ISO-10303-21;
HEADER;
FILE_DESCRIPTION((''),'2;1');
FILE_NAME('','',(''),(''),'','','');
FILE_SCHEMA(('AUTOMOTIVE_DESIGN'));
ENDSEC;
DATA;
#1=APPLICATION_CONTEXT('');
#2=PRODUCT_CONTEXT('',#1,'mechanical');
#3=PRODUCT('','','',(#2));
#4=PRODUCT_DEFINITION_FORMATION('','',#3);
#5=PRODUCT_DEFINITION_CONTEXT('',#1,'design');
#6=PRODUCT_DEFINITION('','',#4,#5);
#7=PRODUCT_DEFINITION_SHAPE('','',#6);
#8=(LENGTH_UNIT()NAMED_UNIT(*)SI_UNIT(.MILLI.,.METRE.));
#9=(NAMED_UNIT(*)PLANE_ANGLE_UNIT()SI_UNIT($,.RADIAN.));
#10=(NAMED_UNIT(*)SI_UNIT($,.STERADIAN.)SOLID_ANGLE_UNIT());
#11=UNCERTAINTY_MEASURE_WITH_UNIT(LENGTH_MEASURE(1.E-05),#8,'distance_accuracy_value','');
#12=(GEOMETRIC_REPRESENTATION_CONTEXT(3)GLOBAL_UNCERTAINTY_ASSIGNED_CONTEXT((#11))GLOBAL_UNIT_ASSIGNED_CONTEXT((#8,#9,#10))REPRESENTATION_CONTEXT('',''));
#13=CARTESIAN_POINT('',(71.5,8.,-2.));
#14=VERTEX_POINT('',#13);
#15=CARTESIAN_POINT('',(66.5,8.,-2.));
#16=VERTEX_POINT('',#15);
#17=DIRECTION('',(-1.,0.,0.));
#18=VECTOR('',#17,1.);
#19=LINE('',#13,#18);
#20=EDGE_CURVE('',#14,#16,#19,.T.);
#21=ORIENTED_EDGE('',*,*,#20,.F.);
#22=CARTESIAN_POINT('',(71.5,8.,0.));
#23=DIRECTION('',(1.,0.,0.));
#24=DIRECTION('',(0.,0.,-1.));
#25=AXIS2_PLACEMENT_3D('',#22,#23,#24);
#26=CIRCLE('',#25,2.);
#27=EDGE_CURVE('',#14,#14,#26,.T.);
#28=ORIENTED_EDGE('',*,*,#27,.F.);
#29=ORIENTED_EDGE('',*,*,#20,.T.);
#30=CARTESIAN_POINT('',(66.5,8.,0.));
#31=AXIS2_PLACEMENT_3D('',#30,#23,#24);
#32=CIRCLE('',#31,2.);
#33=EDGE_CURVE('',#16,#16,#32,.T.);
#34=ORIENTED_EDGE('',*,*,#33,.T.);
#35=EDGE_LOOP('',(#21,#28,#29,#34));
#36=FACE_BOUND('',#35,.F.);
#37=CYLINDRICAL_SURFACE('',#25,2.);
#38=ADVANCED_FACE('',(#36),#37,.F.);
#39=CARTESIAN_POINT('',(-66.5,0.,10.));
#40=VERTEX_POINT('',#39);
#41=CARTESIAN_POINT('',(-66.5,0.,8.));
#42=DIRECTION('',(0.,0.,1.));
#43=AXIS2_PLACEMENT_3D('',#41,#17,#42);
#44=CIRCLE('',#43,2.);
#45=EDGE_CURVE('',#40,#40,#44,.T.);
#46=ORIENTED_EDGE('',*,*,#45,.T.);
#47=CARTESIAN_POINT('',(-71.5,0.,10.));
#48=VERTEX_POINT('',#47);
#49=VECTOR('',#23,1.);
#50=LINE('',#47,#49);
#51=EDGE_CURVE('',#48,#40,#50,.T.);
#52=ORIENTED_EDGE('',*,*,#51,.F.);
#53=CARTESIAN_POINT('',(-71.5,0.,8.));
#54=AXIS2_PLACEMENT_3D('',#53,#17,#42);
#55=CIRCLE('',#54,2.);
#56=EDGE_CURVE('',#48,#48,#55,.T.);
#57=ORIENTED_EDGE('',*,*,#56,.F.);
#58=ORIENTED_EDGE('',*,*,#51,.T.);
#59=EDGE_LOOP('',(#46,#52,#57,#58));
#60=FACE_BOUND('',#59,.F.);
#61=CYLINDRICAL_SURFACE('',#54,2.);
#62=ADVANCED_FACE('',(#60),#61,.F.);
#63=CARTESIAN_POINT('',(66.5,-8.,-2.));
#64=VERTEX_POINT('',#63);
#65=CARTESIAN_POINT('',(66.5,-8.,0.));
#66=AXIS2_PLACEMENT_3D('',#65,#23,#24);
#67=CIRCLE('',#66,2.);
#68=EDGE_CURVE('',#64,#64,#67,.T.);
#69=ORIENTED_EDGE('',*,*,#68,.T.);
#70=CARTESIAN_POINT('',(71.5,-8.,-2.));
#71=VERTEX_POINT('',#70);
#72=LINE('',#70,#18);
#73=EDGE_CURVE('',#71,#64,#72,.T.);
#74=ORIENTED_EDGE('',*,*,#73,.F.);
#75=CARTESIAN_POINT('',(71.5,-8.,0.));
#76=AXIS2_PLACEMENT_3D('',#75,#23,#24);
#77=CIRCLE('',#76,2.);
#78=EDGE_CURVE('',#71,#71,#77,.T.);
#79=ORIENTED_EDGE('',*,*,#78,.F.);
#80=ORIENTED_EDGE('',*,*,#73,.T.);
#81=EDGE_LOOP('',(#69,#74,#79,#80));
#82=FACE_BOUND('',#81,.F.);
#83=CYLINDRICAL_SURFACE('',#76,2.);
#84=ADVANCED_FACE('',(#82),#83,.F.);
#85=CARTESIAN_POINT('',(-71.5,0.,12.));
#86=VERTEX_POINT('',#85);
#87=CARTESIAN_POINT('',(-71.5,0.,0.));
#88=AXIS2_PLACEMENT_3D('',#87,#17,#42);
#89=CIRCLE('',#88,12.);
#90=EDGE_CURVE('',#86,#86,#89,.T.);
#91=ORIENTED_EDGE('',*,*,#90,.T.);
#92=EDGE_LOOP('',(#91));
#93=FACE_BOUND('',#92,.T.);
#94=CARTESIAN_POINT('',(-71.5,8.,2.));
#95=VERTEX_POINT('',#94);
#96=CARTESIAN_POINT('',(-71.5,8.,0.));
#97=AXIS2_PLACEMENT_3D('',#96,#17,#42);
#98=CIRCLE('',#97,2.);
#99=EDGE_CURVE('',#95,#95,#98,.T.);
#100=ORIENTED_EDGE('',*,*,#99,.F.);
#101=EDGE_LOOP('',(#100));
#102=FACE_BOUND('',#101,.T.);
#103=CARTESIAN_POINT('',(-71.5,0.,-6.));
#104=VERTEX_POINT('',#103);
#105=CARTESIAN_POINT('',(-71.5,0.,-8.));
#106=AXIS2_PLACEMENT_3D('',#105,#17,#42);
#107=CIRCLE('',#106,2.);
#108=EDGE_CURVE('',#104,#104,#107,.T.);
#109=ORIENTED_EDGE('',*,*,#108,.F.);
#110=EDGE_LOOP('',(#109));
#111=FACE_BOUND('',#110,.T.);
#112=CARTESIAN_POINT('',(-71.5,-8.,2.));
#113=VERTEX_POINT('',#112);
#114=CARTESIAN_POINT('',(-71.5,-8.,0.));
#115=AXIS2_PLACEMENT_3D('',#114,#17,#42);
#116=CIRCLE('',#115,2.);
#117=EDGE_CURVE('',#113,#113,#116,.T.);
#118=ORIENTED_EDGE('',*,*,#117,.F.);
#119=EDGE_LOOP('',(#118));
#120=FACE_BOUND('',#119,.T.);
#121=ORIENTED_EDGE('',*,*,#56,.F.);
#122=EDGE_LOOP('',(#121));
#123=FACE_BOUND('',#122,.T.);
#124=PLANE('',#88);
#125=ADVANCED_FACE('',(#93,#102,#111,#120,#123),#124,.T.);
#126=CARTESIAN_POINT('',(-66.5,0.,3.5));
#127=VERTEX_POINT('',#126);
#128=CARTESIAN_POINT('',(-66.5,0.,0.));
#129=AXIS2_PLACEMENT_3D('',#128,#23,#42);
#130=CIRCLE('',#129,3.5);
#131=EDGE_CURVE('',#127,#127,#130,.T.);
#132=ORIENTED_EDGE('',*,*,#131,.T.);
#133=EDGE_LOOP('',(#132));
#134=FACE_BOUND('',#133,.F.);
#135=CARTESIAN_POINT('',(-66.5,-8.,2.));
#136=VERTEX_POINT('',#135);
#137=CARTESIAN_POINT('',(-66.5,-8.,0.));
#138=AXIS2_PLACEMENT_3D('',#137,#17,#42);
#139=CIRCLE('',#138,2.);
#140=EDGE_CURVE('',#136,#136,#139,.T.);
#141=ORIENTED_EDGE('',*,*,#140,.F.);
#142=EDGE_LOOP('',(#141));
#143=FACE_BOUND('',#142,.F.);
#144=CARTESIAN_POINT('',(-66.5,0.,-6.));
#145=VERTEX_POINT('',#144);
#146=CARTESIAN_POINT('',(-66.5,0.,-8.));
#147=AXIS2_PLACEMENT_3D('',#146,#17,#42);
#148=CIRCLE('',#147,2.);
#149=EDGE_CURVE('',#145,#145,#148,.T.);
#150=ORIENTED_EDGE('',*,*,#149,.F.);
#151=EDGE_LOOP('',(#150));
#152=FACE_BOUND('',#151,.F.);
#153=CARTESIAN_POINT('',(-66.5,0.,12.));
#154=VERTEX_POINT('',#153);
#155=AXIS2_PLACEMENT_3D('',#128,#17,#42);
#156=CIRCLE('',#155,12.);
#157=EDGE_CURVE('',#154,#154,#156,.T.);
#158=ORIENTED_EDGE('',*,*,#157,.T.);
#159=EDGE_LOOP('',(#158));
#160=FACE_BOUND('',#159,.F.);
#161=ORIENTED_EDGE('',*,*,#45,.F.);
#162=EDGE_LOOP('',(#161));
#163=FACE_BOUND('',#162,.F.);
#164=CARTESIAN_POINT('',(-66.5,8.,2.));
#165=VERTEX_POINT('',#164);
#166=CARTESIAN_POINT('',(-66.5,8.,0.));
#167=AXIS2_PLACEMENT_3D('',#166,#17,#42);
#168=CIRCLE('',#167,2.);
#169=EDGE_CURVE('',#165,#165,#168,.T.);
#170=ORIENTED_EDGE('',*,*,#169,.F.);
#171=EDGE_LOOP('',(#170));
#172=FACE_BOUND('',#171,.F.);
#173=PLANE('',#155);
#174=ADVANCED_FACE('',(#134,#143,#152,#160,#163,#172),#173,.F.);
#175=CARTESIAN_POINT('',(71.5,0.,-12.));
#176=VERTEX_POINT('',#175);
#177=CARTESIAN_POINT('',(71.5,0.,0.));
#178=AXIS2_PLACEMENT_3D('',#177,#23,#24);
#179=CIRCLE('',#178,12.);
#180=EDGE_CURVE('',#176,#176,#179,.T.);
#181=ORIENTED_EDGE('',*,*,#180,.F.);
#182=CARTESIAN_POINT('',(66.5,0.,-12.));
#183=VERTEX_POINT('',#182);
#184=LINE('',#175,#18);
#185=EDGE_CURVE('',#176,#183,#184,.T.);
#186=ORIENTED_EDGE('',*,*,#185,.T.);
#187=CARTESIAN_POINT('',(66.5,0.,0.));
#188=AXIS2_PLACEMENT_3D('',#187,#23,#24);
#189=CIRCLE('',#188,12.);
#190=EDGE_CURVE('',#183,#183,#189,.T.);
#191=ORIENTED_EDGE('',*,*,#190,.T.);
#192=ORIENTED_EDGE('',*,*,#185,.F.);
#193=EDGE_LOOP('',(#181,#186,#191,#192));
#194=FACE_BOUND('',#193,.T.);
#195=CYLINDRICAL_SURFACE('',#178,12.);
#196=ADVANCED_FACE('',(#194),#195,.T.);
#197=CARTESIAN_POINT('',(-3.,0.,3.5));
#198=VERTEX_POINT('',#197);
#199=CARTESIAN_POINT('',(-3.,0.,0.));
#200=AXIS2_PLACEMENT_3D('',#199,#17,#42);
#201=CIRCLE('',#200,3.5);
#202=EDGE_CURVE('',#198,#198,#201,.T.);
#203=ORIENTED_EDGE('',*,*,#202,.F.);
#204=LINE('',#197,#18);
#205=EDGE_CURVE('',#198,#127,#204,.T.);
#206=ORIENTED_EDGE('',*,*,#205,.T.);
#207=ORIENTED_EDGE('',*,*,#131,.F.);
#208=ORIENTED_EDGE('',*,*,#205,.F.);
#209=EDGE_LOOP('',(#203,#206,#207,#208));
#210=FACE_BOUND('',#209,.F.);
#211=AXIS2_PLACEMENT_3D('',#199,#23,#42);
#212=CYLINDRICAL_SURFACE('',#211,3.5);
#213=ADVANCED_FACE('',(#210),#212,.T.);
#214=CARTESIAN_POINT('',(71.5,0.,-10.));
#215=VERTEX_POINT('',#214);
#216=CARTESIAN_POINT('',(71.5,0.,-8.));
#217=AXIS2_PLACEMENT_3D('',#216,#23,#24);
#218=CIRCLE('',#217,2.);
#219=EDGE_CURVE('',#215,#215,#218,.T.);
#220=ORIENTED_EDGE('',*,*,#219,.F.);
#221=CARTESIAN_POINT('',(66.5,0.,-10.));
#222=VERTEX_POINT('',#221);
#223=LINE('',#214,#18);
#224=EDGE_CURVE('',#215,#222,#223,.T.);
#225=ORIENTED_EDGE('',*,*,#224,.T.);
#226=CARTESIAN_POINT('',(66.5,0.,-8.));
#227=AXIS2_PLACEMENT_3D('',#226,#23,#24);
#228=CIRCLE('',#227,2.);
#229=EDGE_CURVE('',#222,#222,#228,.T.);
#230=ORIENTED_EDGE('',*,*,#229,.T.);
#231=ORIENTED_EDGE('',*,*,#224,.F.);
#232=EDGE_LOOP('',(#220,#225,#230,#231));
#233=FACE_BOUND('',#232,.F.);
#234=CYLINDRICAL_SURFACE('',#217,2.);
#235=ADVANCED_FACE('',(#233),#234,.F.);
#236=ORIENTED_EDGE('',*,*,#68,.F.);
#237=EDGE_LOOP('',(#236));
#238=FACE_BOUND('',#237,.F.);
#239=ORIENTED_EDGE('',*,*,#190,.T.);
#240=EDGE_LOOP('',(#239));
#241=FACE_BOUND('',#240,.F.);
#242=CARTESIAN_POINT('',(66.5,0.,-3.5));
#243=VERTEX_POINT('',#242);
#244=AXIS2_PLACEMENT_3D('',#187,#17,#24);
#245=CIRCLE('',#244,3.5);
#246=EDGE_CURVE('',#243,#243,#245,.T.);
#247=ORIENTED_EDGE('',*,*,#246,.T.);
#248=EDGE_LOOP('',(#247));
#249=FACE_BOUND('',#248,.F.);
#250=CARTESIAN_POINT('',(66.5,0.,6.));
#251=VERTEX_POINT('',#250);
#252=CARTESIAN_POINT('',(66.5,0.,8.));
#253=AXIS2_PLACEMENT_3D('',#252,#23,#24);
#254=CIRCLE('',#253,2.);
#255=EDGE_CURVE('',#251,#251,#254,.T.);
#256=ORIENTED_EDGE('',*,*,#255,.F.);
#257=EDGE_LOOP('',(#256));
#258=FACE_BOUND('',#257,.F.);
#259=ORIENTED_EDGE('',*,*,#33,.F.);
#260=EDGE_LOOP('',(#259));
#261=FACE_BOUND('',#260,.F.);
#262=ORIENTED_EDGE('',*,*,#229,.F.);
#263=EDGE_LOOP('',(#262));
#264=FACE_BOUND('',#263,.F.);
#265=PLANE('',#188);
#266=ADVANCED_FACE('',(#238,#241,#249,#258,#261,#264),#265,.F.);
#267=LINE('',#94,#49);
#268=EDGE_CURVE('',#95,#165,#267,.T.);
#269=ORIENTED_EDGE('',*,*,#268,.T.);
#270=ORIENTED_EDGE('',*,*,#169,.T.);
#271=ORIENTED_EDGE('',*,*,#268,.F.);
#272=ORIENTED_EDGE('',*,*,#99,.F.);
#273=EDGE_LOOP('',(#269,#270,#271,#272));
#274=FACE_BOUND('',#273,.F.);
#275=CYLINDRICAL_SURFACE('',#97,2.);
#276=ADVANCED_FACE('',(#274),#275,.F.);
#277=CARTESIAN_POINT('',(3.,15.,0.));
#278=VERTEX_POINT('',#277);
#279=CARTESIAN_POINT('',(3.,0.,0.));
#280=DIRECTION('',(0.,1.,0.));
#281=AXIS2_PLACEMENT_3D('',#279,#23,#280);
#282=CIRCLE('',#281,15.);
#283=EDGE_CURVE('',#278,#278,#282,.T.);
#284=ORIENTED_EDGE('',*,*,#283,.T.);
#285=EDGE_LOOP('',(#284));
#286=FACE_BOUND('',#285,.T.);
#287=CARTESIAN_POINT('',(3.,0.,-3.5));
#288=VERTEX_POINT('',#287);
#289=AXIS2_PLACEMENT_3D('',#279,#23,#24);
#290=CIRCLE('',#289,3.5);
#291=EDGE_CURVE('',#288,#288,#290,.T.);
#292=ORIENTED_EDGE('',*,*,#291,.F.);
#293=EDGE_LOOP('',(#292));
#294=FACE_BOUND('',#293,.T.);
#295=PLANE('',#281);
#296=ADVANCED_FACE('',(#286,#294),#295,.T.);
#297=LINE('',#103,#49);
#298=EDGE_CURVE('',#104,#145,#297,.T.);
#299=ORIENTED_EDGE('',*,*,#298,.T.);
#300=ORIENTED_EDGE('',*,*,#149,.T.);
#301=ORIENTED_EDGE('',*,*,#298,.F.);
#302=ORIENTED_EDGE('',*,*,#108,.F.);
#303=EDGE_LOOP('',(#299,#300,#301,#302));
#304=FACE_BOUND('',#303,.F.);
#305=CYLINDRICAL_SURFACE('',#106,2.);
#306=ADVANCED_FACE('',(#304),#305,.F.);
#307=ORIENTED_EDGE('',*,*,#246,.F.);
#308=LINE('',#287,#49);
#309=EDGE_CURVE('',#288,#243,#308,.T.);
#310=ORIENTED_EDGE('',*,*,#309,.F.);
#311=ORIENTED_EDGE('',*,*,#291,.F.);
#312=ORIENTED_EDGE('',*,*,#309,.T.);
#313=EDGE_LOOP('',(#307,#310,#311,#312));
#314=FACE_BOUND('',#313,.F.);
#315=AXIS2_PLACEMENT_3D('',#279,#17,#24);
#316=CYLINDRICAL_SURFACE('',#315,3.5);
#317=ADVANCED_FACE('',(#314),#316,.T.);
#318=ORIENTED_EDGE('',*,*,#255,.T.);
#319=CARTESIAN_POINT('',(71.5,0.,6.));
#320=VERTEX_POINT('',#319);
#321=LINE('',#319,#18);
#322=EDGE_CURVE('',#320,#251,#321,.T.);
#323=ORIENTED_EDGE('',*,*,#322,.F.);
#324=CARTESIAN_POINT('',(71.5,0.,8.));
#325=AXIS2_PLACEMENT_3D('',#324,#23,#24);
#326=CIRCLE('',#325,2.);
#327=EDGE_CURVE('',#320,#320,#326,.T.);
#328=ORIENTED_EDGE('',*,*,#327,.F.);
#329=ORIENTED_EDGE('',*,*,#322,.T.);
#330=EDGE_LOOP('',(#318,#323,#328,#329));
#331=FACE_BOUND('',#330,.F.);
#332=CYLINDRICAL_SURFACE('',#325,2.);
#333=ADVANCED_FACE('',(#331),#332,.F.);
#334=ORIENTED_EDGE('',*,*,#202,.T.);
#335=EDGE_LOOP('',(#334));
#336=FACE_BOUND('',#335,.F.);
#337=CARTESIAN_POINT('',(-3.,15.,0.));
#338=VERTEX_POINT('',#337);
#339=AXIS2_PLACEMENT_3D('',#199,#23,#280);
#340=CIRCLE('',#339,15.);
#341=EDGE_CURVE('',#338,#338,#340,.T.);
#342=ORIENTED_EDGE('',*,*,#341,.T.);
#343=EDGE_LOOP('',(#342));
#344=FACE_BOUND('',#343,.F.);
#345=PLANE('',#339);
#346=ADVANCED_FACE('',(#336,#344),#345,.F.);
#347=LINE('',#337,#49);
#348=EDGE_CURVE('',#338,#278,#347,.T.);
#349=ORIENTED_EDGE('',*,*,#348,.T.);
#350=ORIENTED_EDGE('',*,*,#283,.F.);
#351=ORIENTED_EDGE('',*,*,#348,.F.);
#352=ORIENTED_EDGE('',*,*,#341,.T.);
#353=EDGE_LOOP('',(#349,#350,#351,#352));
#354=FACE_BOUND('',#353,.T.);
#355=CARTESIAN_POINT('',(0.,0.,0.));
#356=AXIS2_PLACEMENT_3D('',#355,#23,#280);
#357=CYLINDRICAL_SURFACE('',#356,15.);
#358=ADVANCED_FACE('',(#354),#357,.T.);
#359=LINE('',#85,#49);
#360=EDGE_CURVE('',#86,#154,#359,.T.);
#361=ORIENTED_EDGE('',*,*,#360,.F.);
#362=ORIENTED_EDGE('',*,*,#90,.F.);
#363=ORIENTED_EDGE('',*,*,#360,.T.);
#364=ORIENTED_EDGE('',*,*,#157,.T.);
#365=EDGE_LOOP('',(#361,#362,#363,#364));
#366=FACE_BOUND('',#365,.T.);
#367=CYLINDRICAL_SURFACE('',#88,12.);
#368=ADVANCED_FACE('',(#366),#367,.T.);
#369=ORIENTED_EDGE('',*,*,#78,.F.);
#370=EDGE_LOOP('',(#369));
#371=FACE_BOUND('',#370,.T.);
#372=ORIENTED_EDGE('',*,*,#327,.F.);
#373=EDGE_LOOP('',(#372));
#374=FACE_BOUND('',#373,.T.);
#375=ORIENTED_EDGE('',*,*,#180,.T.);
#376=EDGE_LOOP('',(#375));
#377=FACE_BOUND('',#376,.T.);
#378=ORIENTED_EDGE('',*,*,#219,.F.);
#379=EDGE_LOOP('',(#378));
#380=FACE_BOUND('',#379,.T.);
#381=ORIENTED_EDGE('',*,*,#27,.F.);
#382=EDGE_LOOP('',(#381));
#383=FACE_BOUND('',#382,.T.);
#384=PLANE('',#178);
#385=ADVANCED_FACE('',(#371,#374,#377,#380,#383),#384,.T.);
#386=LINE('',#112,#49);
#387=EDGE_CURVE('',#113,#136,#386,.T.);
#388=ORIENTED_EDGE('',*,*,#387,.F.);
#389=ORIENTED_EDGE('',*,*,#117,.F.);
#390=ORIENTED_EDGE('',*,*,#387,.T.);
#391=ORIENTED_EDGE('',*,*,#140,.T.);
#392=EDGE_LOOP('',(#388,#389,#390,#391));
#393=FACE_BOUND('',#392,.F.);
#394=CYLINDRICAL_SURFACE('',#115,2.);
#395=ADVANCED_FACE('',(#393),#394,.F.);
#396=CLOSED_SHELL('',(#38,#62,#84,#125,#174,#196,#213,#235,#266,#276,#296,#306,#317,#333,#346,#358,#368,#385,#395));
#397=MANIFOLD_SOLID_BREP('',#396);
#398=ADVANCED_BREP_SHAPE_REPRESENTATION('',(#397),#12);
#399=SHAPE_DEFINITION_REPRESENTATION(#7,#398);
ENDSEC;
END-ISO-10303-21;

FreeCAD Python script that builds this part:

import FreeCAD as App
import Part
import Sketcher
Q = App.Units.Quantity

doc = App.newDocument("Part")
body = doc.addObject("PartDesign::Body", "Body")

# Sketch on YZ plane
sketch1 = doc.addObject("Sketcher::SketchObject", "Sketch")
body.addObject(sketch1)
sketch1.AttachmentSupport = (doc.YZ_Plane, [""])
sketch1.MapMode = "FlatFace"
sketch1.addGeometry(Part.Circle(App.Vector(0, 0, 0), App.Vector(0, 0, 1), 15), False)
sketch1.addConstraint(Sketcher.Constraint("Coincident", 0, 3, -1, 1))
sketch1.addConstraint(Sketcher.Constraint("Diameter", 0, Q("30 mm")))
pad1 = doc.addObject("PartDesign::Pad", "Pad")
body.addObject(pad1)
pad1.Profile = sketch1
pad1.Length = 6
pad1.Midplane = True

# Sketch on YZ plane
sketch2 = doc.addObject("Sketcher::SketchObject", "Sketch001")
body.addObject(sketch2)
sketch2.AttachmentSupport = (doc.YZ_Plane, [""])
sketch2.MapMode = "FlatFace"
sketch2.AttachmentOffset = App.Placement(App.Vector(0, 0, 3), App.Rotation())
sketch2.addGeometry(Part.Circle(App.Vector(0, 0, 0), App.Vector(0, 0, 1), 3.5), False)
sketch2.addConstraint(Sketcher.Constraint("Coincident", 0, 3, -1, 1))
sketch2.addConstraint(Sketcher.Constraint("Diameter", 0, Q("7 mm")))
pad2 = doc.addObject("PartDesign::Pad", "Pad001")
body.addObject(pad2)
pad2.Profile = sketch2
pad2.Length = 68.5

# Sketch on YZ plane
sketch3 = doc.addObject("Sketcher::SketchObject", "Sketch002")
body.addObject(sketch3)
sketch3.AttachmentSupport = (doc.YZ_Plane, [""])
sketch3.MapMode = "FlatFace"
sketch3.AttachmentOffset = App.Placement(App.Vector(0, 0, -3), App.Rotation())
sketch3.addGeometry(Part.Circle(App.Vector(0, 0, 0), App.Vector(0, 0, 1), 3.5), False)
sketch3.addConstraint(Sketcher.Constraint("Coincident", 0, 3, -1, 1))
sketch3.addConstraint(Sketcher.Constraint("Diameter", 0, Q("7 mm")))
pad3 = doc.addObject("PartDesign::Pad", "Pad002")
body.addObject(pad3)
pad3.Profile = sketch3
pad3.Length = 68.5
pad3.Reversed = True

# Sketch on YZ plane
sketch4 = doc.addObject("Sketcher::SketchObject", "Sketch003")
body.addObject(sketch4)
sketch4.AttachmentSupport = (doc.YZ_Plane, [""])
sketch4.MapMode = "FlatFace"
sketch4.AttachmentOffset = App.Placement(App.Vector(0, 0, -71.5), App.Rotation())
sketch4.addGeometry(Part.Circle(App.Vector(0, 0, 0), App.Vector(0, 0, 1), 12), False)
sketch4.addConstraint(Sketcher.Constraint("Coincident", 0, 3, -1, 1))
sketch4.addConstraint(Sketcher.Constraint("Diameter", 0, Q("24 mm")))
pad4 = doc.addObject("PartDesign::Pad", "Pad003")
body.addObject(pad4)
pad4.Profile = sketch4
pad4.Length = 5

# Sketch on YZ plane
sketch5 = doc.addObject("Sketcher::SketchObject", "Sketch004")
body.addObject(sketch5)
sketch5.AttachmentSupport = (doc.YZ_Plane, [""])
sketch5.MapMode = "FlatFace"
sketch5.AttachmentOffset = App.Placement(App.Vector(0, 0, 71.5), App.Rotation())
sketch5.addGeometry(Part.Circle(App.Vector(0, 0, 0), App.Vector(0, 0, 1), 12), False)
sketch5.addConstraint(Sketcher.Constraint("Coincident", 0, 3, -1, 1))
sketch5.addConstraint(Sketcher.Constraint("Diameter", 0, Q("24 mm")))
pad5 = doc.addObject("PartDesign::Pad", "Pad004")
body.addObject(pad5)
pad5.Profile = sketch5
pad5.Length = 5
pad5.Reversed = True

# Sketch on YZ plane
sketch6 = doc.addObject("Sketcher::SketchObject", "Sketch005")
body.addObject(sketch6)
sketch6.AttachmentSupport = (doc.YZ_Plane, [""])
sketch6.MapMode = "FlatFace"
sketch6.AttachmentOffset = App.Placement(App.Vector(0, 0, 71.5), App.Rotation())
sketch6.addGeometry(Part.Circle(App.Vector(-8, 0, 0), App.Vector(0, 0, 1), 2), False)
sketch6.addGeometry(Part.Circle(App.Vector(0, -8, 0), App.Vector(0, 0, 1), 2), False)
sketch6.addGeometry(Part.Circle(App.Vector(8, 0, 0), App.Vector(0, 0, 1), 2), False)
sketch6.addGeometry(Part.Circle(App.Vector(0, 8, 0), App.Vector(0, 0, 1), 2), False)
sketch6.addConstraint(Sketcher.Constraint("Equal", 0, 1))
sketch6.addConstraint(Sketcher.Constraint("Equal", 1, 2))
sketch6.addConstraint(Sketcher.Constraint("Equal", 2, 3))
sketch6.addConstraint(Sketcher.Constraint("Symmetric", 0, 3, 2, 3, -1, 1))
sketch6.addConstraint(Sketcher.Constraint("Symmetric", 1, 3, 3, 3, -1, 1))
sketch6.addConstraint(Sketcher.Constraint("PointOnObject", 0, 3, -1))
sketch6.addConstraint(Sketcher.Constraint("PointOnObject", 1, 3, -2))
sketch6.addConstraint(Sketcher.Constraint("Diameter", 0, Q("4 mm")))
sketch6.addConstraint(Sketcher.Constraint("DistanceX", 0, 3, -1, 1, Q("8 mm")))
sketch6.addConstraint(Sketcher.Constraint("DistanceY", 1, 3, -1, 1, Q("8 mm")))
pocket1 = doc.addObject("PartDesign::Pocket", "Pocket")
body.addObject(pocket1)
pocket1.Profile = sketch6
pocket1.Length = 5

# Sketch on YZ plane
sketch7 = doc.addObject("Sketcher::SketchObject", "Sketch006")
body.addObject(sketch7)
sketch7.AttachmentSupport = (doc.YZ_Plane, [""])
sketch7.MapMode = "FlatFace"
sketch7.AttachmentOffset = App.Placement(App.Vector(0, 0, -71.5), App.Rotation())
sketch7.addGeometry(Part.Circle(App.Vector(-8, 0, 0), App.Vector(0, 0, 1), 2), False)
sketch7.addGeometry(Part.Circle(App.Vector(0, 8, 0), App.Vector(0, 0, 1), 2), False)
sketch7.addGeometry(Part.Circle(App.Vector(8, 0, 0), App.Vector(0, 0, 1), 2), False)
sketch7.addGeometry(Part.Circle(App.Vector(0, -8, 0), App.Vector(0, 0, 1), 2), False)
sketch7.addConstraint(Sketcher.Constraint("Equal", 0, 1))
sketch7.addConstraint(Sketcher.Constraint("Equal", 1, 2))
sketch7.addConstraint(Sketcher.Constraint("Equal", 2, 3))
sketch7.addConstraint(Sketcher.Constraint("Symmetric", 0, 3, 2, 3, -1, 1))
sketch7.addConstraint(Sketcher.Constraint("Symmetric", 1, 3, 3, 3, -1, 1))
sketch7.addConstraint(Sketcher.Constraint("PointOnObject", 0, 3, -1))
sketch7.addConstraint(Sketcher.Constraint("PointOnObject", 1, 3, -2))
sketch7.addConstraint(Sketcher.Constraint("Diameter", 0, Q("4 mm")))
sketch7.addConstraint(Sketcher.Constraint("DistanceX", 0, 3, -1, 1, Q("8 mm")))
sketch7.addConstraint(Sketcher.Constraint("DistanceY", -1, 1, 1, 3, Q("8 mm")))
pocket2 = doc.addObject("PartDesign::Pocket", "Pocket001")
body.addObject(pocket2)
pocket2.Profile = sketch7
pocket2.Length = 5
pocket2.Reversed = True

doc.recompute()
